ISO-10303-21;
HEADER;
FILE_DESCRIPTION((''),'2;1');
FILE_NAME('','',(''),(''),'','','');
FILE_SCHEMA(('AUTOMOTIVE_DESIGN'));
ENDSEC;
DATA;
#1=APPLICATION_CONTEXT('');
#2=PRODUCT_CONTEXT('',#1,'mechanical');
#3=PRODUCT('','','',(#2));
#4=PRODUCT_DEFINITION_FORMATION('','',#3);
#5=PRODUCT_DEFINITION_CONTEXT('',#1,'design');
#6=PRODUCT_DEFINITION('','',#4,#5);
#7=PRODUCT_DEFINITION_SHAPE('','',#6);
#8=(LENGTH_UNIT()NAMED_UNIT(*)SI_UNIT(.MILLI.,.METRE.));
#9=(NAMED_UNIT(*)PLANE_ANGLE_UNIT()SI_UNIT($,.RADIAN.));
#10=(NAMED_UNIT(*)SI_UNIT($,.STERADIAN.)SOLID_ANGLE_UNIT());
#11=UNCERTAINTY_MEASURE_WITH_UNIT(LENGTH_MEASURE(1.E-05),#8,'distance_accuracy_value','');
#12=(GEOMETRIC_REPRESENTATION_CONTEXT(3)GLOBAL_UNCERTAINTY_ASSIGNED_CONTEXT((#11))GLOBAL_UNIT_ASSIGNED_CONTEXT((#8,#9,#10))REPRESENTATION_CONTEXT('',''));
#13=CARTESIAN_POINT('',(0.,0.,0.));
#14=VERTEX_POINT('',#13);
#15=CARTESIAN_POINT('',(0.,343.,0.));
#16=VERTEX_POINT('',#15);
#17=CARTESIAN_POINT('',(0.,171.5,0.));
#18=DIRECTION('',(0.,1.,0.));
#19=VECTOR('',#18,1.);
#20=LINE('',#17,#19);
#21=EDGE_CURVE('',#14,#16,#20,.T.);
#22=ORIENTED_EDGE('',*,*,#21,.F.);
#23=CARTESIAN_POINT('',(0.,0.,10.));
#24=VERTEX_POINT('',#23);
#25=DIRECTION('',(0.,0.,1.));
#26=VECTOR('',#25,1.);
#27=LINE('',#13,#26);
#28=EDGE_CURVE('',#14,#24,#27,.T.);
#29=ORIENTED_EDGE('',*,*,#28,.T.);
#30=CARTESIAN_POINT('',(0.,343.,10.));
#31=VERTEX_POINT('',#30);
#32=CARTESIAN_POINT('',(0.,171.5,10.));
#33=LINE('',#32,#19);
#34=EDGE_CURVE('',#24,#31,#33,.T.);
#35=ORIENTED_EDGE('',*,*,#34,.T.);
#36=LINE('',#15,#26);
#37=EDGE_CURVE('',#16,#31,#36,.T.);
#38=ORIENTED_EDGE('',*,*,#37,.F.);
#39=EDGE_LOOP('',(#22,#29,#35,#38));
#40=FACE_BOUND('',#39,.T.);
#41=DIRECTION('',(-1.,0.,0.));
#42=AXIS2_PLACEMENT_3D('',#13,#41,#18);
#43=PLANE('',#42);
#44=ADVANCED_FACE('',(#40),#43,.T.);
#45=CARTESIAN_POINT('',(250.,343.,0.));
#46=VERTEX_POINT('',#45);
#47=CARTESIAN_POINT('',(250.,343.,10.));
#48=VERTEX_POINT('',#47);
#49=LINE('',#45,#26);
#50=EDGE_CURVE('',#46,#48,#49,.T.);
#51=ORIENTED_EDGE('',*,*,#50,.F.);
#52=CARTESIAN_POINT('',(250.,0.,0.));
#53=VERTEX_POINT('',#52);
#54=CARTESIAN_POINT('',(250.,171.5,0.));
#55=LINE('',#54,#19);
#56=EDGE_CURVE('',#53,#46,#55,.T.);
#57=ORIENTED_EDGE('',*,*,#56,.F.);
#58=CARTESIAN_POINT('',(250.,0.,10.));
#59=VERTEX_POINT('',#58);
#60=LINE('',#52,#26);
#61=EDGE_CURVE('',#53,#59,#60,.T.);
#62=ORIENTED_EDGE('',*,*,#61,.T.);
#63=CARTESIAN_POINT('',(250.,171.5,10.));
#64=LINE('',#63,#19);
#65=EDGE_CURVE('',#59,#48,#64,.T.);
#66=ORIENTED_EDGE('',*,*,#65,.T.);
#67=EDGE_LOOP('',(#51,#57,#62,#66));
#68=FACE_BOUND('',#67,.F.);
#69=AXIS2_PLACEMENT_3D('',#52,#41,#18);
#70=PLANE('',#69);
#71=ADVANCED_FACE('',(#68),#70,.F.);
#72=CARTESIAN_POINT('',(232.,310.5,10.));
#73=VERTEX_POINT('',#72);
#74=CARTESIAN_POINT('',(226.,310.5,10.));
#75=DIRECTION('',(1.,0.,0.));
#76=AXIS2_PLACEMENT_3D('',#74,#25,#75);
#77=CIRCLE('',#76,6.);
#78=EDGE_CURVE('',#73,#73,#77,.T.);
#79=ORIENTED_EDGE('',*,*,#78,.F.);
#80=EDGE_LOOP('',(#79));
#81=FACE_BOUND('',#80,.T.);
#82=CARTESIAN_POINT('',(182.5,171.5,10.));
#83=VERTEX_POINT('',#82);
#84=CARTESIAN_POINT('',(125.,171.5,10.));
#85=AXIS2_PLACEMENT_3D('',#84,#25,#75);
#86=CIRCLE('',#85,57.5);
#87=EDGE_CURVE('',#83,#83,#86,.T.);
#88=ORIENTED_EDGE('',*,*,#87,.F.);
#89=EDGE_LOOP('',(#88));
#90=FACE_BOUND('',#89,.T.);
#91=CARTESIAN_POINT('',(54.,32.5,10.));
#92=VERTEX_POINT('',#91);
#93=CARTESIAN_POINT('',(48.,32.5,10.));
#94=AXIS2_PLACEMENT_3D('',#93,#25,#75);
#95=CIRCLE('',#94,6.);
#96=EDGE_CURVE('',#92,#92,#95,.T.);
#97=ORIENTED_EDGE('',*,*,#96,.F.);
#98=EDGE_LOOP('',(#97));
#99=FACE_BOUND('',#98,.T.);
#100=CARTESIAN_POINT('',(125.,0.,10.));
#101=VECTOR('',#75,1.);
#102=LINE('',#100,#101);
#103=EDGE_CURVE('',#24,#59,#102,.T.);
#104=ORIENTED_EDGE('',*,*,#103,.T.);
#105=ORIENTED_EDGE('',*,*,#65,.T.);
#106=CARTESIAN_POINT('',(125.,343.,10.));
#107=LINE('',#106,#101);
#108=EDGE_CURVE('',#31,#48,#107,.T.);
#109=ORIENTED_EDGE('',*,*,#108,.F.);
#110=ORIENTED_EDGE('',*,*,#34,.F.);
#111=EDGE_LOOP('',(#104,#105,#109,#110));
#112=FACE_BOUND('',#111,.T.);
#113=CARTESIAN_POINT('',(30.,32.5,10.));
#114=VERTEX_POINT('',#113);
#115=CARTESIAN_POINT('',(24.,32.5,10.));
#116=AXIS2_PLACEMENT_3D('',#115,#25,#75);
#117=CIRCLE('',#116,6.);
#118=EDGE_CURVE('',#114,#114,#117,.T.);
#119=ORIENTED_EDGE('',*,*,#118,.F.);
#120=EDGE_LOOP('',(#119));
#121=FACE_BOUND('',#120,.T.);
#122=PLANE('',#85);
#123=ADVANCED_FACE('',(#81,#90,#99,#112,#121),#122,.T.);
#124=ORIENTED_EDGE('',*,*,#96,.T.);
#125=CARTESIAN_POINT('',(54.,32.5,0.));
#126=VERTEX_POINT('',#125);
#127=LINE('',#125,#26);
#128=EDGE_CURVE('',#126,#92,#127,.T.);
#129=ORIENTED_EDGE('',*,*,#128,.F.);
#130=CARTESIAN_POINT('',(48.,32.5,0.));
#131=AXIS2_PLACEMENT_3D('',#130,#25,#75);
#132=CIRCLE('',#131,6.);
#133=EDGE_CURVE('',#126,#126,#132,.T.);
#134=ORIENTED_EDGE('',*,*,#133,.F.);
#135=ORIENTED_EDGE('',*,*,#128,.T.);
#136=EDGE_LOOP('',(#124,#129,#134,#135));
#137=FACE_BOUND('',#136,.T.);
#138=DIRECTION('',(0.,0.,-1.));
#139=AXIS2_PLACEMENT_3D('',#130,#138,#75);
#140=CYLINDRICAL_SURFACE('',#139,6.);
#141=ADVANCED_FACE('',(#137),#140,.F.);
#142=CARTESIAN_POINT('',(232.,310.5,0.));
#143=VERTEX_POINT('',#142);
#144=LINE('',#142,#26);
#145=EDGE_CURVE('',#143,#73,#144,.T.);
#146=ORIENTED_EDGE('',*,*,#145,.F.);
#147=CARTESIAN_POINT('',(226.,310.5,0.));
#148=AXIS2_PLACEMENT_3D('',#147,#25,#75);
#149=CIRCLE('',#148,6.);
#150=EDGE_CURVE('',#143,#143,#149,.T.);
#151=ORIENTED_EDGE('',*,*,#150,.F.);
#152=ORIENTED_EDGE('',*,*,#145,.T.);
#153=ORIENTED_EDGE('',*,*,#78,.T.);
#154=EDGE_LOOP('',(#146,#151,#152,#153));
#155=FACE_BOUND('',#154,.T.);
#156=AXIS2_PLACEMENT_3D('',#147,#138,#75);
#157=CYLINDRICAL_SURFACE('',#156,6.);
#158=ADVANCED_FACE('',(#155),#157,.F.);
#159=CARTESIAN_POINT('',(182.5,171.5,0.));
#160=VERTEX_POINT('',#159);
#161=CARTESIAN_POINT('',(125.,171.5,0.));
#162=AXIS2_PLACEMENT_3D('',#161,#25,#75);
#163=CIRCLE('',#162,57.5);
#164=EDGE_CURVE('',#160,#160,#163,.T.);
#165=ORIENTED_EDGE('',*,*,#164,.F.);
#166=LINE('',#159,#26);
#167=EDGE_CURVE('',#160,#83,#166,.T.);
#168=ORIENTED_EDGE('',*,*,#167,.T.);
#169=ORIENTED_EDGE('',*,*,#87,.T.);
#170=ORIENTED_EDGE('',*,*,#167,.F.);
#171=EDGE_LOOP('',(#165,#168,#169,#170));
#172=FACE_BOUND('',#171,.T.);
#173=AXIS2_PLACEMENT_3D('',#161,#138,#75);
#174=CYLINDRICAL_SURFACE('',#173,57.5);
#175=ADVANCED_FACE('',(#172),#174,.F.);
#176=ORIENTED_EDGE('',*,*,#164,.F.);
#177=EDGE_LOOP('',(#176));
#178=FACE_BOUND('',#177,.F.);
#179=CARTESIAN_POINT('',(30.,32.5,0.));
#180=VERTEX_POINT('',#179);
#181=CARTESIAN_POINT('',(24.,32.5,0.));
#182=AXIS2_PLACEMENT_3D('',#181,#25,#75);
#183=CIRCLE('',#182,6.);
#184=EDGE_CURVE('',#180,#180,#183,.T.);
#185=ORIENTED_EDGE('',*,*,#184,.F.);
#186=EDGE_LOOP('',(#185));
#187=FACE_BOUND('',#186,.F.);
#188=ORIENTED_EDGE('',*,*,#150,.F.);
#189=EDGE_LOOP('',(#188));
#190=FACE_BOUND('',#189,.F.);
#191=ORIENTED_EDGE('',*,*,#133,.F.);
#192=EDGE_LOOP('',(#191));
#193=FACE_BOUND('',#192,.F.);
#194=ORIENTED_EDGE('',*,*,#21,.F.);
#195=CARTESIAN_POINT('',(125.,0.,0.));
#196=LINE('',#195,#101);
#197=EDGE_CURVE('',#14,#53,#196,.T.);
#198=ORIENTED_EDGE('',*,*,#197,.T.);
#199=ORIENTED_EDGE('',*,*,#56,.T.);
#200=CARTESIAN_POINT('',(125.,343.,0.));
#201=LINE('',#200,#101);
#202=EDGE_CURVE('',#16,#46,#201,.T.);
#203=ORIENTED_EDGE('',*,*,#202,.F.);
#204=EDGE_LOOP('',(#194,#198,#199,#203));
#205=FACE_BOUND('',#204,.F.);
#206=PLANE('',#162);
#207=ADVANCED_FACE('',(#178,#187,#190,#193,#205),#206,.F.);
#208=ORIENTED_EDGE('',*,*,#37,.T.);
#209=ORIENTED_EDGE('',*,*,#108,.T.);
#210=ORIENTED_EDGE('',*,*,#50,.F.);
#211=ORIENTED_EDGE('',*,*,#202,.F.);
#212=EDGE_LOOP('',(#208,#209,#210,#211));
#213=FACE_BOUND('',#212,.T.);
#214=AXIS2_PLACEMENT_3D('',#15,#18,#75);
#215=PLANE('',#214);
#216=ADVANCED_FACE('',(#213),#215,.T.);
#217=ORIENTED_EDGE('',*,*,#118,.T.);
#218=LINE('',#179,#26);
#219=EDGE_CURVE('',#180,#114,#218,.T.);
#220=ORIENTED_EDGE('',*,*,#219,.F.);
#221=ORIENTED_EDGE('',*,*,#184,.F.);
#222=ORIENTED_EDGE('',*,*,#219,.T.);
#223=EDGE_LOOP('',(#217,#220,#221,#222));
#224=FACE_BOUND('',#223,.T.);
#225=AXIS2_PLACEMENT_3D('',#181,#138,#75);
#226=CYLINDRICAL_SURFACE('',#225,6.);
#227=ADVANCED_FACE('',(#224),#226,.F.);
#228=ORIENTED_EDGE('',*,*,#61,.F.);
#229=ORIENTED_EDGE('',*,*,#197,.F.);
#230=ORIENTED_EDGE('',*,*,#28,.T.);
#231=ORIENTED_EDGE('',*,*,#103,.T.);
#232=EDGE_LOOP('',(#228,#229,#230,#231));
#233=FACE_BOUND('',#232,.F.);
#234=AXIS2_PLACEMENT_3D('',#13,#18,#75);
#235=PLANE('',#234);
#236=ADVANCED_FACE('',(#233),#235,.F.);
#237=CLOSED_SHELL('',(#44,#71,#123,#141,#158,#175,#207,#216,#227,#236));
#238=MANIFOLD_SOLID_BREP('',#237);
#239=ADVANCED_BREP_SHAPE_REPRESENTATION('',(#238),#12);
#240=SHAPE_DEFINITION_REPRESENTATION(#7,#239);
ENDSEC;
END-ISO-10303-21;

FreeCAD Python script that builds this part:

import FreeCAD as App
import Part
import Sketcher

V = App.Vector

doc = App.newDocument("Part")
body = doc.addObject("PartDesign::Body", "Body")

sketch1 = body.newObject("Sketcher::SketchObject", "Sketch")
sketch1.AttachmentSupport = (doc.getObject("XY_Plane"), [""])
sketch1.MapMode = "FlatFace"
sketch1.addGeometry([
    Part.LineSegment(V(0, 343, 0), V(0, 0, 0)),
    Part.LineSegment(V(0, 0, 0), V(250, 0, 0)),
    Part.LineSegment(V(250, 0, 0), V(250, 343, 0)),
    Part.LineSegment(V(250, 343, 0), V(0, 343, 0)),
    Part.Circle(V(24, 32, 0), V(0, 0, 1), 6),
    Part.Circle(V(48, 32, 0), V(0, 0, 1), 6),
    Part.Circle(V(125, 172, 0), V(0, 0, 1), 58),
    Part.Circle(V(226, 310, 0), V(0, 0, 1), 6),
], False)
sketch1.addConstraint([
    Sketcher.Constraint("Coincident", 0, 2, 1, 1),
    Sketcher.Constraint("Coincident", 1, 2, 2, 1),
    Sketcher.Constraint("Coincident", 2, 2, 3, 1),
    Sketcher.Constraint("Coincident", 3, 2, 0, 1),
    Sketcher.Constraint("Vertical", 0),
    Sketcher.Constraint("Horizontal", 1),
    Sketcher.Constraint("Vertical", 2),
    Sketcher.Constraint("Horizontal", 3),
    Sketcher.Constraint("Coincident", 0, 2, -1, 1),
    Sketcher.Constraint("Equal", 4, 5),
    Sketcher.Constraint("Equal", 5, 7),
    Sketcher.Constraint("Horizontal", 4, 3, 5, 3),
    Sketcher.Constraint("Diameter", 4, 12.0),
    Sketcher.Constraint("Diameter", 6, 115.0),
    Sketcher.Constraint("DistanceX", 1, 1, 1, 2, 250.0),
    Sketcher.Constraint("DistanceY", 0, 2, 0, 1, 343.0),
    Sketcher.Constraint("DistanceX", -1, 1, 4, 3, 24.0),
    Sketcher.Constraint("DistanceX", -1, 1, 5, 3, 48.0),
    Sketcher.Constraint("DistanceX", -1, 1, 6, 3, 125.0),
    Sketcher.Constraint("DistanceX", -1, 1, 7, 3, 226.0),
    Sketcher.Constraint("DistanceY", 5, 3, 6, 3, 139.0),
    Sketcher.Constraint("DistanceY", 6, 3, 7, 3, 139.0),
    Sketcher.Constraint("DistanceY", -1, 1, 4, 3, 32.5),
])
pad1 = body.newObject("PartDesign::Pad", "Pad")
pad1.Profile = sketch1
pad1.Length = 10

doc.recompute()
